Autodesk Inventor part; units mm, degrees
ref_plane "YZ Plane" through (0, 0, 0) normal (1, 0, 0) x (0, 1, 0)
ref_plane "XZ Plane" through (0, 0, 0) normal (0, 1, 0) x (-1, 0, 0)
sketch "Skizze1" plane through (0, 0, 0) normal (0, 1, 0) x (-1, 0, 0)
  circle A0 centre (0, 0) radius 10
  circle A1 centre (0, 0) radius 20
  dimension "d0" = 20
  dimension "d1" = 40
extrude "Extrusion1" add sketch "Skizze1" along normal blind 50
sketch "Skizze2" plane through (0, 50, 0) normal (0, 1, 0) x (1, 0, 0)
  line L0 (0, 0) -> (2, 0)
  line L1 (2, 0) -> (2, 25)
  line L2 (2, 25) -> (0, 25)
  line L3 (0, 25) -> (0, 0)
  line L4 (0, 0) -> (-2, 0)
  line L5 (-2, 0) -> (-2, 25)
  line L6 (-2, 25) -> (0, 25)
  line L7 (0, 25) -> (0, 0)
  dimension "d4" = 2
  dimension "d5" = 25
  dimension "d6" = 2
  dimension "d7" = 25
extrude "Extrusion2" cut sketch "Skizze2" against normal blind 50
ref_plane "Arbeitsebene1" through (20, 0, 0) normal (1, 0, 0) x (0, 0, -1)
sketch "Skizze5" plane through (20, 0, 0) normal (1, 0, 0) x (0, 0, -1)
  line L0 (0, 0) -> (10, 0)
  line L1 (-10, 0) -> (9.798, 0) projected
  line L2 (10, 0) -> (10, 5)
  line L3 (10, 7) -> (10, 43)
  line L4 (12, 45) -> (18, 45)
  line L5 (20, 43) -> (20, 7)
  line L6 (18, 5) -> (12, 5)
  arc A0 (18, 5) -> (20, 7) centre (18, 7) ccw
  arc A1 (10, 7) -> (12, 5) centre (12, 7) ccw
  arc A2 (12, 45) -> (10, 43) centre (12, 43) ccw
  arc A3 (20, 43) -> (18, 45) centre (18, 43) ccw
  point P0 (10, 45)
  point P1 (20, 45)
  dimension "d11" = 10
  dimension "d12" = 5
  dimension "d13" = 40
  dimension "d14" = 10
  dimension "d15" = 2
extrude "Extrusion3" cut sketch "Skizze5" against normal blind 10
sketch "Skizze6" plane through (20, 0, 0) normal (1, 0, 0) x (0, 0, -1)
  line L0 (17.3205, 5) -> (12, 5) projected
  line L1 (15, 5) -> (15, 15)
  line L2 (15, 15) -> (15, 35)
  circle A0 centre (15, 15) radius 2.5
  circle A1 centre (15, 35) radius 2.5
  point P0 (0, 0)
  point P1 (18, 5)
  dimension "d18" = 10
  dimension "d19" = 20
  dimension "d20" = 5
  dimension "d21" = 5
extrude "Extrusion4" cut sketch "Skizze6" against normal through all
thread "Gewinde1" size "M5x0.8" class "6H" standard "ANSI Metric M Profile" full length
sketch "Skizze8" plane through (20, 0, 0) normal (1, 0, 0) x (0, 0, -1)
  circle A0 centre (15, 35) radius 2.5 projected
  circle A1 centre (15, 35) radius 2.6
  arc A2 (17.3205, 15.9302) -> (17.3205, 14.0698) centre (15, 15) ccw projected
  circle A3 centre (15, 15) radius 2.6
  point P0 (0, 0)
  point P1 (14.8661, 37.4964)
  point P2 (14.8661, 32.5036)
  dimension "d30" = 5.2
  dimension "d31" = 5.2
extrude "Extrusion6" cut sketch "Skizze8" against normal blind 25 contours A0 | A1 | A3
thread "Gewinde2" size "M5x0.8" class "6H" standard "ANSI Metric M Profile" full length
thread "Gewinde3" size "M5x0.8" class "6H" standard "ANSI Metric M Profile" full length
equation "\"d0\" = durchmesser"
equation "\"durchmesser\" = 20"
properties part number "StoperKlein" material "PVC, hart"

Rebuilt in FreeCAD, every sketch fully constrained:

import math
import FreeCAD as App
import Part
import Sketcher
from FreeCAD import Vector
Q = App.Units.Quantity


def add_polygon(sketch, points):
    """Adds a closed chain of lines whose ends are joined by coincident constraints."""
    first, n = sketch.GeometryCount, len(points)
    for a, b in zip(points, points[1:] + points[:1]):
        sketch.addGeometry(Part.LineSegment(App.Vector(*a, 0), App.Vector(*b, 0)), False)
    for i in range(n):
        sketch.addConstraint(Sketcher.Constraint("Coincident", first + i, 2, first + (i + 1) % n, 1))

doc = App.newDocument("Part")
body = doc.addObject("PartDesign::Body", "Body")

# Sketch on XZ plane
sketch1 = body.newObject("Sketcher::SketchObject", "Sketch")
sketch1.AttachmentSupport = (doc.getObject("XZ_Plane"), [""])
sketch1.MapMode = "FlatFace"
sketch1.addGeometry(Part.Circle(Vector(0, 0, 0), Vector(0, 0, 1), 20), False)
sketch1.addGeometry(Part.Circle(Vector(0, 0, 0), Vector(0, 0, 1), 10), False)
sketch1.addConstraint(Sketcher.Constraint("Coincident", 0, 3, -1, 1))
sketch1.addConstraint(Sketcher.Constraint("Coincident", 1, 3, -1, 1))
sketch1.addConstraint(Sketcher.Constraint("Diameter", 0, Q("40 mm")))
sketch1.addConstraint(Sketcher.Constraint("Diameter", 1, Q("20 mm")))
pad1 = body.newObject("PartDesign::Pad", "Pad")
pad1.Profile = sketch1
pad1.Length = 50
pad1.Reversed = True

# Sketch on XZ plane
sketch2 = body.newObject("Sketcher::SketchObject", "Sketch001")
sketch2.AttachmentSupport = (doc.getObject("XZ_Plane"), [""])
sketch2.MapMode = "FlatFace"
sketch2.AttachmentOffset = App.Placement(Vector(0, 0, -50), App.Rotation())
add_polygon(sketch2, [(2, -25), (-2, -25), (-2, 0), (2, 0)])  # lines 0-3
sketch2.addConstraint(Sketcher.Constraint("Horizontal", 0))
sketch2.addConstraint(Sketcher.Constraint("Vertical", 1))
sketch2.addConstraint(Sketcher.Constraint("Horizontal", 2))
sketch2.addConstraint(Sketcher.Constraint("Vertical", 3))
sketch2.addConstraint(Sketcher.Constraint("Symmetric", 1, 2, 2, 2, -1, 1))
sketch2.addConstraint(Sketcher.Constraint("DistanceY", 1, 1, 1, 2, Q("25 mm")))
sketch2.addConstraint(Sketcher.Constraint("DistanceX", 0, 2, -1, 1, Q("2 mm")))
pocket1 = body.newObject("PartDesign::Pocket", "Pocket")
pocket1.Profile = sketch2
pocket1.Length = 50
pocket1.Reversed = True

# Sketch on YZ plane
sketch3 = body.newObject("Sketcher::SketchObject", "Sketch002")
sketch3.AttachmentSupport = (doc.getObject("YZ_Plane"), [""])
sketch3.MapMode = "FlatFace"
sketch3.AttachmentOffset = App.Placement(Vector(0, 0, 20), App.Rotation())
sketch3.addGeometry(Part.LineSegment(Vector(43, -10, 0), Vector(7, -10, 0)), False)
sketch3.addGeometry(Part.ArcOfCircle(Part.Circle(Vector(7, -12, 0), Vector(0, 0, 1), 2), math.radians(90), math.radians(180)), False)
sketch3.addGeometry(Part.LineSegment(Vector(5, -12, 0), Vector(5, -18, 0)), False)
sketch3.addGeometry(Part.ArcOfCircle(Part.Circle(Vector(7, -18, 0), Vector(0, 0, 1), 2), math.radians(180), math.radians(270)), False)
sketch3.addGeometry(Part.LineSegment(Vector(7, -20, 0), Vector(43, -20, 0)), False)
sketch3.addGeometry(Part.ArcOfCircle(Part.Circle(Vector(43, -18, 0), Vector(0, 0, 1), 2), math.radians(-90), math.radians(0)), False)
sketch3.addGeometry(Part.LineSegment(Vector(45, -18, 0), Vector(45, -12, 0)), False)
sketch3.addGeometry(Part.ArcOfCircle(Part.Circle(Vector(43, -12, 0), Vector(0, 0, 1), 2), math.radians(0), math.radians(90)), False)
sketch3.addConstraint(Sketcher.Constraint("Tangent", 0, 2, 1, 1))
sketch3.addConstraint(Sketcher.Constraint("Tangent", 1, 2, 2, 1))
sketch3.addConstraint(Sketcher.Constraint("Tangent", 2, 2, 3, 1))
sketch3.addConstraint(Sketcher.Constraint("Tangent", 3, 2, 4, 1))
sketch3.addConstraint(Sketcher.Constraint("Tangent", 4, 2, 5, 1))
sketch3.addConstraint(Sketcher.Constraint("Tangent", 5, 2, 6, 1))
sketch3.addConstraint(Sketcher.Constraint("Tangent", 6, 2, 7, 1))
sketch3.addConstraint(Sketcher.Constraint("Tangent", 7, 2, 0, 1))
sketch3.addConstraint(Sketcher.Constraint("Horizontal", 0))
sketch3.addConstraint(Sketcher.Constraint("Vertical", 2))
sketch3.addConstraint(Sketcher.Constraint("Horizontal", 4))
sketch3.addConstraint(Sketcher.Constraint("Vertical", 6))
sketch3.addConstraint(Sketcher.Constraint("Equal", 1, 3))
sketch3.addConstraint(Sketcher.Constraint("Equal", 3, 5))
sketch3.addConstraint(Sketcher.Constraint("Equal", 5, 7))
sketch3.addConstraint(Sketcher.Constraint("Radius", 1, Q("2 mm")))
sketch3.addConstraint(Sketcher.Constraint("DistanceY", 0, 2, -1, 1, Q("10 mm")))
sketch3.addConstraint(Sketcher.Constraint("DistanceX", -1, 1, 1, 2, Q("5 mm")))
sketch3.addConstraint(Sketcher.Constraint("DistanceY", 3, 2, 0, 2, Q("10 mm")))
sketch3.addConstraint(Sketcher.Constraint("DistanceX", 0, 2, 0, 1, Q("36 mm")))
pocket2 = body.newObject("PartDesign::Pocket", "Pocket001")
pocket2.Profile = sketch3
pocket2.Length = 10

# Sketch on YZ plane
sketch4 = body.newObject("Sketcher::SketchObject", "Sketch003")
sketch4.AttachmentSupport = (doc.getObject("YZ_Plane"), [""])
sketch4.MapMode = "FlatFace"
sketch4.AttachmentOffset = App.Placement(Vector(0, 0, 20), App.Rotation())
sketch4.addGeometry(Part.Circle(Vector(15, -15, 0), Vector(0, 0, 1), 2.5), False)
sketch4.addGeometry(Part.Circle(Vector(35, -15, 0), Vector(0, 0, 1), 2.5), False)
sketch4.addConstraint(Sketcher.Constraint("Equal", 0, 1))
sketch4.addConstraint(Sketcher.Constraint("Horizontal", 0, 3, 1, 3))
sketch4.addConstraint(Sketcher.Constraint("Diameter", 0, Q("5 mm")))
sketch4.addConstraint(Sketcher.Constraint("DistanceX", 0, 3, 1, 3, Q("20 mm")))
sketch4.addConstraint(Sketcher.Constraint("DistanceX", -1, 1, 0, 3, Q("15 mm")))
sketch4.addConstraint(Sketcher.Constraint("DistanceY", 0, 3, -1, 1, Q("15 mm")))
pocket3 = body.newObject("PartDesign::Pocket", "Pocket002")
pocket3.Profile = sketch4
pocket3.Type = "ThroughAll"

# Sketch on YZ plane
sketch5 = body.newObject("Sketcher::SketchObject", "Sketch004")
sketch5.AttachmentSupport = (doc.getObject("YZ_Plane"), [""])
sketch5.MapMode = "FlatFace"
sketch5.AttachmentOffset = App.Placement(Vector(0, 0, 20), App.Rotation())
sketch5.addGeometry(Part.Circle(Vector(35, -15, 0), Vector(0, 0, 1), 2.6), False)
sketch5.addGeometry(Part.Circle(Vector(15, -15, 0), Vector(0, 0, 1), 2.6), False)
sketch5.addConstraint(Sketcher.Constraint("Equal", 0, 1))
sketch5.addConstraint(Sketcher.Constraint("Horizontal", 0, 3, 1, 3))
sketch5.addConstraint(Sketcher.Constraint("Diameter", 0, Q("5.2 mm")))
sketch5.addConstraint(Sketcher.Constraint("DistanceX", -1, 1, 0, 3, Q("35 mm")))
sketch5.addConstraint(Sketcher.Constraint("DistanceY", 0, 3, -1, 1, Q("15 mm")))
sketch5.addConstraint(Sketcher.Constraint("DistanceX", -1, 1, 1, 3, Q("15 mm")))
pocket4 = body.newObject("PartDesign::Pocket", "Pocket003")
pocket4.Profile = sketch5
pocket4.Length = 25

doc.recompute()
